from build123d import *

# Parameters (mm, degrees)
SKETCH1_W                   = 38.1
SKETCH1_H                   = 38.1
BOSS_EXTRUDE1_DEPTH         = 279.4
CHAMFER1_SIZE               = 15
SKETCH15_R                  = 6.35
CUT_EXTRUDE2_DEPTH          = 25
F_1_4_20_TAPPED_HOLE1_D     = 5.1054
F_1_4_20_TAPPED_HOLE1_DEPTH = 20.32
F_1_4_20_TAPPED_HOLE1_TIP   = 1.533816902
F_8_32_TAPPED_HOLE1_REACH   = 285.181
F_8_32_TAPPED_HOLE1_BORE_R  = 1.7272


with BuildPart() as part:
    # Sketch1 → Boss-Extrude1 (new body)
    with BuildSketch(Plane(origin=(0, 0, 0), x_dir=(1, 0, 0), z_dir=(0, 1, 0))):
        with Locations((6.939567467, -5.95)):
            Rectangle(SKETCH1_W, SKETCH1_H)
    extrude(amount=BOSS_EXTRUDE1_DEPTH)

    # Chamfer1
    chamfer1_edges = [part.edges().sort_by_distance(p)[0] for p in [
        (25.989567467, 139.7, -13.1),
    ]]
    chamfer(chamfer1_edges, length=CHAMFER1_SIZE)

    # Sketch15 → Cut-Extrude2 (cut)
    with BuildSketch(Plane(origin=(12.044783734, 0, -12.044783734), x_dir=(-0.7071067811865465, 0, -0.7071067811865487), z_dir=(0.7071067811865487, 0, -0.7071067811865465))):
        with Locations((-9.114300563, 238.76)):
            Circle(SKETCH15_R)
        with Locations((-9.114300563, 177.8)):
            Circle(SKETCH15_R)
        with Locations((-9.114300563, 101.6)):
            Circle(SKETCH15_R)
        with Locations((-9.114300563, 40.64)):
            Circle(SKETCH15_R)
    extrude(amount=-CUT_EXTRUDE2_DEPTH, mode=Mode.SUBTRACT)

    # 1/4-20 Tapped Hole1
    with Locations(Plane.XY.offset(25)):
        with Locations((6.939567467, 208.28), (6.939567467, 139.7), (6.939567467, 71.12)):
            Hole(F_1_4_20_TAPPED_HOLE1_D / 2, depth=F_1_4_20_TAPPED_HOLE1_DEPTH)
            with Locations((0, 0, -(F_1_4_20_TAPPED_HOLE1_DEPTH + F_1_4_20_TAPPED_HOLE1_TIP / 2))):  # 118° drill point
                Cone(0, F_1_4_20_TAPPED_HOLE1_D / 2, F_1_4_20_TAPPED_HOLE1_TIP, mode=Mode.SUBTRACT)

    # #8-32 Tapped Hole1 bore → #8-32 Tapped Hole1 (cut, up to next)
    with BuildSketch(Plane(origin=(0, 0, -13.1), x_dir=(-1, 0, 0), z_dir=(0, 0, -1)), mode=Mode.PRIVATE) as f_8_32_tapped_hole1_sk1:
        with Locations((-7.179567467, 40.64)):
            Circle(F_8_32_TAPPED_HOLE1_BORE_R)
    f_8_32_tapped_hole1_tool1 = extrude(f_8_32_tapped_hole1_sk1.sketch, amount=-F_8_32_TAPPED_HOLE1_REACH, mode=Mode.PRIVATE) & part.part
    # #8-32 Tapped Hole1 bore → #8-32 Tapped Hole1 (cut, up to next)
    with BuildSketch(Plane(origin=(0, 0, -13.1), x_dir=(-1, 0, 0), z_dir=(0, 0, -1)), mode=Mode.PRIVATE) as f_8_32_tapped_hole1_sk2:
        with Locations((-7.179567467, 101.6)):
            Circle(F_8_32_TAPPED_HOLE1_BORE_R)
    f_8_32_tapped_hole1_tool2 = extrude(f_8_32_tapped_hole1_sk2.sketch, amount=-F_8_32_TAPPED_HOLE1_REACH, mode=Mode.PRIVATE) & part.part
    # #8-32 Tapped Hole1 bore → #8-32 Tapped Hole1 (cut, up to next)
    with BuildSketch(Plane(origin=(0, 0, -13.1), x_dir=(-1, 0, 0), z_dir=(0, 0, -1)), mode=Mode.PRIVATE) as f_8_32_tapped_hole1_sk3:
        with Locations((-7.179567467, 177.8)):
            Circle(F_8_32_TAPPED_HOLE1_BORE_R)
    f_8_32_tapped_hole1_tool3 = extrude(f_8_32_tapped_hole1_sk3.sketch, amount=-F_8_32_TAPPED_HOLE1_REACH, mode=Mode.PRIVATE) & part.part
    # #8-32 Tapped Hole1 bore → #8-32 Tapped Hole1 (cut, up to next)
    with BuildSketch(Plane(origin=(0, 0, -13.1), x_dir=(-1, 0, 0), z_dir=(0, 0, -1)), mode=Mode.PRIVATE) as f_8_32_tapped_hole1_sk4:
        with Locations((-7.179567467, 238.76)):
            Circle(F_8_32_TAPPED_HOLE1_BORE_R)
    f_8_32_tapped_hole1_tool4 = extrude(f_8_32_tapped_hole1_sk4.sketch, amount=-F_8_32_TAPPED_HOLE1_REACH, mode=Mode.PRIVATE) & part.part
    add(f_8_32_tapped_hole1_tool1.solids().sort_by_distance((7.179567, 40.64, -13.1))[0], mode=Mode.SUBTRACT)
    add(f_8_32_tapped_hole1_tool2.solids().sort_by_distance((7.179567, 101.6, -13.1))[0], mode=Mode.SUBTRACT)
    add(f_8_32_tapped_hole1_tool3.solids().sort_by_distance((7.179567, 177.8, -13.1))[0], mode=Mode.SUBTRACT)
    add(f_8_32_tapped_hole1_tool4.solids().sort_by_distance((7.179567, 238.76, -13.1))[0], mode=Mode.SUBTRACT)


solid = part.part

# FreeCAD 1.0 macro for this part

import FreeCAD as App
import Part
import Sketcher

V = App.Vector
Q = App.Units.Quantity


def edges_at(feature, points):
    """Names of the edges that pass closest to the given points."""
    edges = feature.Shape.Edges
    near = lambda p: min(range(len(edges)), key=lambda i: edges[i].distToShape(Part.Vertex(*p))[0])
    return sorted({f"Edge{near(p) + 1}" for p in points})

doc = App.newDocument("Part")
params = doc.addObject("Spreadsheet::Sheet", "Params")
for row, (alias, value) in enumerate([
    ("sketch1_width", "1.5 in"),
    ("pad1_length", "11 in"),
    ("chamfer_size", "15 mm"),
    ("sketch2_diameter", "0.5 in"),
    ("pocket1_length", "25 mm"),
    ("sketch3_diameter", "0.201 in"),
    ("hole_diameter", "0.201 in"),
    ("hole_depth", "0.8 in"),
    ("sketch4_diameter", "0.136 in"),
    ("sketch5_diameter", "0.136 in"),
    ("sketch6_diameter", "0.136 in"),
    ("sketch7_diameter", "0.136 in"),
], start=1):
    params.set(f"A{row}", alias)
    params.set(f"B{row}", "=" + value)
    params.setAlias(f"B{row}", alias)

body = doc.addObject("PartDesign::Body", "Body")

sketch1 = body.newObject("Sketcher::SketchObject", "Sketch")
sketch1.AttachmentSupport = (doc.getObject("XZ_Plane"), [""])
sketch1.MapMode = "FlatFace"
sketch1.addGeometry([
    Part.LineSegment(V(-12, -13, 0), V(-12, 25, 0)),
    Part.LineSegment(V(-12, 25, 0), V(26, 25, 0)),
    Part.LineSegment(V(26, 25, 0), V(26, -13, 0)),
    Part.LineSegment(V(26, -13, 0), V(-12, -13, 0)),
], False)
sketch1.addConstraint([
    Sketcher.Constraint("Coincident", 0, 2, 1, 1),
    Sketcher.Constraint("Coincident", 1, 2, 2, 1),
    Sketcher.Constraint("Coincident", 2, 2, 3, 1),
    Sketcher.Constraint("Coincident", 3, 2, 0, 1),
    Sketcher.Constraint("Vertical", 0),
    Sketcher.Constraint("Horizontal", 1),
    Sketcher.Constraint("Vertical", 2),
    Sketcher.Constraint("Horizontal", 3),
    Sketcher.Constraint("Equal", 3, 0),
    Sketcher.Constraint("DistanceX", 1, 1, 1, 2, Q("1.5 in")),
    Sketcher.Constraint("DistanceY", -1, 1, 0, 2, 25.0),
    Sketcher.Constraint("DistanceX", 0, 2, -1, 1, 12.110433),
])
sketch1.setExpression("Constraints[9]", "Params.sketch1_width")
pad1 = body.newObject("PartDesign::Pad", "Pad")
pad1.Profile = sketch1
pad1.setExpression("Length", "Params.pad1_length")
pad1.Reversed = True
doc.recompute()

chamfer = body.newObject("PartDesign::Chamfer", "Chamfer")
chamfer.Base = (pad1, edges_at(pad1, [(25.99, 139.7, -13.1)]))
chamfer.setExpression("Size", "Params.chamfer_size")

sketch2 = body.newObject("Sketcher::SketchObject", "Sketch001")
sketch2.Placement = App.Placement(V(12.044784, 0, -12.044784), App.Rotation(V(-0.707106781, 0, -0.707106781), V(0, 0.999999999, 0), V(0.707106781, 0, -0.707106781), "ZXY"))
sketch2.addGeometry([
    Part.Circle(V(-9, 239, 0), V(0, 0, 1), 6),
    Part.Circle(V(-9, 178, 0), V(0, 0, 1), 6),
    Part.Circle(V(-9, 102, 0), V(0, 0, 1), 6),
    Part.Circle(V(-9, 41, 0), V(0, 0, 1), 6),
], False)
sketch2.addConstraint([
    Sketcher.Constraint("Equal", 0, 1),
    Sketcher.Constraint("Equal", 1, 2),
    Sketcher.Constraint("Equal", 2, 3),
    Sketcher.Constraint("Vertical", 0, 3, 1, 3),
    Sketcher.Constraint("Vertical", 1, 3, 2, 3),
    Sketcher.Constraint("Vertical", 2, 3, 3, 3),
    Sketcher.Constraint("Diameter", 0, Q("0.5 in")),
    Sketcher.Constraint("DistanceY", -1, 1, 1, 3, Q("7 in")),
    Sketcher.Constraint("DistanceY", -1, 1, 2, 3, Q("4 in")),
    Sketcher.Constraint("DistanceY", -1, 1, 0, 3, Q("9.4 in")),
    Sketcher.Constraint("DistanceY", -1, 1, 3, 3, Q("1.6 in")),
    Sketcher.Constraint("DistanceX", 0, 3, -1, 1, 9.114301),
])
sketch2.setExpression("Constraints[6]", "Params.sketch2_diameter")
pocket1 = body.newObject("PartDesign::Pocket", "Pocket")
pocket1.Profile = sketch2
pocket1.setExpression("Length", "Params.pocket1_length")

sketch3 = body.newObject("Sketcher::SketchObject", "Sketch002")
sketch3.AttachmentSupport = (doc.getObject("XY_Plane"), [""])
sketch3.MapMode = "FlatFace"
sketch3.AttachmentOffset = App.Placement(V(0, 0, 25), App.Rotation())
sketch3.addGeometry([
    Part.Circle(V(6.9, 208.3, 0), V(0, 0, 1), 2.6),
    Part.Circle(V(6.9, 139.7, 0), V(0, 0, 1), 2.6),
    Part.Circle(V(6.9, 71.1, 0), V(0, 0, 1), 2.6),
], False)
sketch3.addConstraint([
    Sketcher.Constraint("Equal", 0, 1),
    Sketcher.Constraint("Equal", 1, 2),
    Sketcher.Constraint("Vertical", 0, 3, 1, 3),
    Sketcher.Constraint("Vertical", 1, 3, 2, 3),
    Sketcher.Constraint("Diameter", 0, Q("0.201 in")),
    Sketcher.Constraint("DistanceY", -1, 1, 0, 3, Q("8.2 in")),
    Sketcher.Constraint("DistanceY", -1, 1, 1, 3, Q("5.5 in")),
    Sketcher.Constraint("DistanceY", -1, 1, 2, 3, Q("2.8 in")),
    Sketcher.Constraint("DistanceX", -1, 1, 0, 3, 6.939567),
])
sketch3.setExpression("Constraints[4]", "Params.sketch3_diameter")
doc.recompute()
hole = body.newObject("PartDesign::Hole", "Hole")
hole.Profile = sketch3
hole.ThreadType = "None"
hole.setExpression("Diameter", "Params.hole_diameter")
hole.DepthType = "Dimension"
hole.setExpression("Depth", "Params.hole_depth")
hole.DrillPoint = "Angled"
hole.DrillPointAngle = 118

sketch4 = body.newObject("Sketcher::SketchObject", "Sketch003")
sketch4.AttachmentSupport = (doc.getObject("XY_Plane"), [""])
sketch4.MapMode = "FlatFace"
sketch4.AttachmentOffset = App.Placement(V(0, 0, -13.1), App.Rotation())
sketch4.addGeometry(Part.Circle(V(7.2, 40.6, 0), V(0, 0, 1), 1.7), False)
sketch4.addConstraint([
    Sketcher.Constraint("Diameter", 0, Q("0.136 in")),
    Sketcher.Constraint("DistanceY", -1, 1, 0, 3, Q("1.6 in")),
    Sketcher.Constraint("DistanceX", -1, 1, 0, 3, 7.179567),
])
sketch4.setExpression("Constraints[0]", "Params.sketch4_diameter")
pocket2 = body.newObject("PartDesign::Pocket", "Pocket001")
pocket2.Profile = sketch4
pocket2.Type = "UpToFirst"
pocket2.Reversed = True

sketch5 = body.newObject("Sketcher::SketchObject", "Sketch004")
sketch5.AttachmentSupport = (doc.getObject("XY_Plane"), [""])
sketch5.MapMode = "FlatFace"
sketch5.AttachmentOffset = App.Placement(V(0, 0, -13.1), App.Rotation())
sketch5.addGeometry(Part.Circle(V(7.2, 101.6, 0), V(0, 0, 1), 1.7), False)
sketch5.addConstraint([
    Sketcher.Constraint("Diameter", 0, Q("0.136 in")),
    Sketcher.Constraint("DistanceY", -1, 1, 0, 3, Q("4 in")),
    Sketcher.Constraint("DistanceX", -1, 1, 0, 3, 7.179567),
])
sketch5.setExpression("Constraints[0]", "Params.sketch5_diameter")
pocket3 = body.newObject("PartDesign::Pocket", "Pocket002")
pocket3.Profile = sketch5
pocket3.Type = "UpToFirst"
pocket3.Reversed = True

sketch6 = body.newObject("Sketcher::SketchObject", "Sketch005")
sketch6.AttachmentSupport = (doc.getObject("XY_Plane"), [""])
sketch6.MapMode = "FlatFace"
sketch6.AttachmentOffset = App.Placement(V(0, 0, -13.1), App.Rotation())
sketch6.addGeometry(Part.Circle(V(7.2, 177.8, 0), V(0, 0, 1), 1.7), False)
sketch6.addConstraint([
    Sketcher.Constraint("Diameter", 0, Q("0.136 in")),
    Sketcher.Constraint("DistanceY", -1, 1, 0, 3, Q("7 in")),
    Sketcher.Constraint("DistanceX", -1, 1, 0, 3, 7.179567),
])
sketch6.setExpression("Constraints[0]", "Params.sketch6_diameter")
pocket4 = body.newObject("PartDesign::Pocket", "Pocket003")
pocket4.Profile = sketch6
pocket4.Type = "UpToFirst"
pocket4.Reversed = True

sketch7 = body.newObject("Sketcher::SketchObject", "Sketch006")
sketch7.AttachmentSupport = (doc.getObject("XY_Plane"), [""])
sketch7.MapMode = "FlatFace"
sketch7.AttachmentOffset = App.Placement(V(0, 0, -13.1), App.Rotation())
sketch7.addGeometry(Part.Circle(V(7.2, 238.8, 0), V(0, 0, 1), 1.7), False)
sketch7.addConstraint([
    Sketcher.Constraint("Diameter", 0, Q("0.136 in")),
    Sketcher.Constraint("DistanceY", -1, 1, 0, 3, Q("9.4 in")),
    Sketcher.Constraint("DistanceX", -1, 1, 0, 3, 7.179567),
])
sketch7.setExpression("Constraints[0]", "Params.sketch7_diameter")
pocket5 = body.newObject("PartDesign::Pocket", "Pocket004")
pocket5.Profile = sketch7
pocket5.Type = "UpToFirst"
pocket5.Reversed = True

doc.recompute()
